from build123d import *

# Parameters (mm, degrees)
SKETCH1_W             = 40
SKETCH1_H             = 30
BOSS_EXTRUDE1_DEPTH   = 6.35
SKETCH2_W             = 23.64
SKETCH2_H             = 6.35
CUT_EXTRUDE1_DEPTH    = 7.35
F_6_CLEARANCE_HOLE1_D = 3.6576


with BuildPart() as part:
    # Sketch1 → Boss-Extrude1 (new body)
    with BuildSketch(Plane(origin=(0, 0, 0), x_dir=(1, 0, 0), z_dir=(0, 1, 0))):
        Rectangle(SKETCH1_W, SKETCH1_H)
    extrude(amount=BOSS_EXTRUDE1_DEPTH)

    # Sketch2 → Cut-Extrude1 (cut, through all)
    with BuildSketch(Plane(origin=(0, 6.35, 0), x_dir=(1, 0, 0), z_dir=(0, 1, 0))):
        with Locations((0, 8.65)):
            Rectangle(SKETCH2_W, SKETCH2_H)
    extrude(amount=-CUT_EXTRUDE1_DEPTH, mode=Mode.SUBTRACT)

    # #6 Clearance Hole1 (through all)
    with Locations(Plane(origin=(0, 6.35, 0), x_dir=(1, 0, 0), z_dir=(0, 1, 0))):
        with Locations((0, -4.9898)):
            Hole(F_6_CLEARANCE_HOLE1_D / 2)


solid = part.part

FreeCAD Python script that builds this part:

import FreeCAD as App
import Part
import Sketcher
from FreeCAD import Vector
Q = App.Units.Quantity

doc = App.newDocument("Part")
body = doc.addObject("PartDesign::Body", "Body")

sketch1 = doc.addObject("Sketcher::SketchObject", "Sketch")
body.addObject(sketch1)
sketch1.AttachmentSupport = (doc.XZ_Plane, [""])
sketch1.MapMode = "FlatFace"
sketch1.addGeometry(Part.LineSegment(Vector(-20, -15, 0), Vector(-20, 15, 0)), False)
sketch1.addGeometry(Part.LineSegment(Vector(-20, 15, 0), Vector(20, 15, 0)), False)
sketch1.addGeometry(Part.LineSegment(Vector(20, 15, 0), Vector(20, -15, 0)), False)
sketch1.addGeometry(Part.LineSegment(Vector(20, -15, 0), Vector(-20, -15, 0)), False)
sketch1.addConstraint(Sketcher.Constraint("Coincident", 0, 2, 1, 1))
sketch1.addConstraint(Sketcher.Constraint("Coincident", 1, 2, 2, 1))
sketch1.addConstraint(Sketcher.Constraint("Coincident", 2, 2, 3, 1))
sketch1.addConstraint(Sketcher.Constraint("Coincident", 3, 2, 0, 1))
sketch1.addConstraint(Sketcher.Constraint("Vertical", 0))
sketch1.addConstraint(Sketcher.Constraint("Horizontal", 1))
sketch1.addConstraint(Sketcher.Constraint("Vertical", 2))
sketch1.addConstraint(Sketcher.Constraint("Horizontal", 3))
sketch1.addConstraint(Sketcher.Constraint("Symmetric", 0, 2, 2, 2, -1, 1))
sketch1.addConstraint(Sketcher.Constraint("DistanceX", 1, 1, 1, 2, Q("40 mm")))
sketch1.addConstraint(Sketcher.Constraint("DistanceY", 0, 1, 0, 2, Q("30 mm")))
pad1 = doc.addObject("PartDesign::Pad", "Pad")
body.addObject(pad1)
pad1.Profile = sketch1
pad1.Length = 6.35
pad1.Reversed = True

sketch2 = doc.addObject("Sketcher::SketchObject", "Sketch001")
body.addObject(sketch2)
sketch2.AttachmentSupport = (doc.XZ_Plane, [""])
sketch2.MapMode = "FlatFace"
sketch2.AttachmentOffset = App.Placement(Vector(0, 0, -6.35), App.Rotation())
sketch2.addGeometry(Part.LineSegment(Vector(-12, -12, 0), Vector(-12, -5, 0)), False)
sketch2.addGeometry(Part.LineSegment(Vector(-12, -5, 0), Vector(12, -5, 0)), False)
sketch2.addGeometry(Part.LineSegment(Vector(12, -5, 0), Vector(12, -12, 0)), False)
sketch2.addGeometry(Part.LineSegment(Vector(12, -12, 0), Vector(-12, -12, 0)), False)
sketch2.addConstraint(Sketcher.Constraint("Coincident", 0, 2, 1, 1))
sketch2.addConstraint(Sketcher.Constraint("Coincident", 1, 2, 2, 1))
sketch2.addConstraint(Sketcher.Constraint("Coincident", 2, 2, 3, 1))
sketch2.addConstraint(Sketcher.Constraint("Coincident", 3, 2, 0, 1))
sketch2.addConstraint(Sketcher.Constraint("Vertical", 0))
sketch2.addConstraint(Sketcher.Constraint("Horizontal", 1))
sketch2.addConstraint(Sketcher.Constraint("Vertical", 2))
sketch2.addConstraint(Sketcher.Constraint("Horizontal", 3))
sketch2.addConstraint(Sketcher.Constraint("DistanceX", 1, 1, 1, 2, Q("23.64 mm")))
sketch2.addConstraint(Sketcher.Constraint("DistanceY", 0, 1, 0, 2, Q("6.35 mm")))
sketch2.addConstraint(Sketcher.Constraint("DistanceX", 0, 2, -1, 1, Q("11.82 mm")))
sketch2.addConstraint(Sketcher.Constraint("DistanceY", 0, 2, -1, 1, Q("5.475 mm")))
pocket1 = doc.addObject("PartDesign::Pocket", "Pocket")
body.addObject(pocket1)
pocket1.Profile = sketch2
pocket1.Type = "ThroughAll"
pocket1.Reversed = True

sketch3 = doc.addObject("Sketcher::SketchObject", "Sketch002")
body.addObject(sketch3)
sketch3.AttachmentSupport = (doc.XZ_Plane, [""])
sketch3.MapMode = "FlatFace"
sketch3.AttachmentOffset = App.Placement(Vector(0, 0, -6.35), App.Rotation())
sketch3.addGeometry(Part.Circle(Vector(0, 5, 0), Vector(0, 0, 1), 1.8), False)
sketch3.addConstraint(Sketcher.Constraint("PointOnObject", 0, 3, -2))
sketch3.addConstraint(Sketcher.Constraint("Diameter", 0, Q("3.6576 mm")))
sketch3.addConstraint(Sketcher.Constraint("DistanceY", -1, 1, 0, 3, Q("4.9898 mm")))
doc.recompute()
hole = doc.addObject("PartDesign::Hole", "Hole")
body.addObject(hole)
hole.Profile = sketch3
hole.ThreadType = "None"
hole.Diameter = 3.6576
hole.DepthType = "ThroughAll"
hole.Reversed = True

doc.recompute()
